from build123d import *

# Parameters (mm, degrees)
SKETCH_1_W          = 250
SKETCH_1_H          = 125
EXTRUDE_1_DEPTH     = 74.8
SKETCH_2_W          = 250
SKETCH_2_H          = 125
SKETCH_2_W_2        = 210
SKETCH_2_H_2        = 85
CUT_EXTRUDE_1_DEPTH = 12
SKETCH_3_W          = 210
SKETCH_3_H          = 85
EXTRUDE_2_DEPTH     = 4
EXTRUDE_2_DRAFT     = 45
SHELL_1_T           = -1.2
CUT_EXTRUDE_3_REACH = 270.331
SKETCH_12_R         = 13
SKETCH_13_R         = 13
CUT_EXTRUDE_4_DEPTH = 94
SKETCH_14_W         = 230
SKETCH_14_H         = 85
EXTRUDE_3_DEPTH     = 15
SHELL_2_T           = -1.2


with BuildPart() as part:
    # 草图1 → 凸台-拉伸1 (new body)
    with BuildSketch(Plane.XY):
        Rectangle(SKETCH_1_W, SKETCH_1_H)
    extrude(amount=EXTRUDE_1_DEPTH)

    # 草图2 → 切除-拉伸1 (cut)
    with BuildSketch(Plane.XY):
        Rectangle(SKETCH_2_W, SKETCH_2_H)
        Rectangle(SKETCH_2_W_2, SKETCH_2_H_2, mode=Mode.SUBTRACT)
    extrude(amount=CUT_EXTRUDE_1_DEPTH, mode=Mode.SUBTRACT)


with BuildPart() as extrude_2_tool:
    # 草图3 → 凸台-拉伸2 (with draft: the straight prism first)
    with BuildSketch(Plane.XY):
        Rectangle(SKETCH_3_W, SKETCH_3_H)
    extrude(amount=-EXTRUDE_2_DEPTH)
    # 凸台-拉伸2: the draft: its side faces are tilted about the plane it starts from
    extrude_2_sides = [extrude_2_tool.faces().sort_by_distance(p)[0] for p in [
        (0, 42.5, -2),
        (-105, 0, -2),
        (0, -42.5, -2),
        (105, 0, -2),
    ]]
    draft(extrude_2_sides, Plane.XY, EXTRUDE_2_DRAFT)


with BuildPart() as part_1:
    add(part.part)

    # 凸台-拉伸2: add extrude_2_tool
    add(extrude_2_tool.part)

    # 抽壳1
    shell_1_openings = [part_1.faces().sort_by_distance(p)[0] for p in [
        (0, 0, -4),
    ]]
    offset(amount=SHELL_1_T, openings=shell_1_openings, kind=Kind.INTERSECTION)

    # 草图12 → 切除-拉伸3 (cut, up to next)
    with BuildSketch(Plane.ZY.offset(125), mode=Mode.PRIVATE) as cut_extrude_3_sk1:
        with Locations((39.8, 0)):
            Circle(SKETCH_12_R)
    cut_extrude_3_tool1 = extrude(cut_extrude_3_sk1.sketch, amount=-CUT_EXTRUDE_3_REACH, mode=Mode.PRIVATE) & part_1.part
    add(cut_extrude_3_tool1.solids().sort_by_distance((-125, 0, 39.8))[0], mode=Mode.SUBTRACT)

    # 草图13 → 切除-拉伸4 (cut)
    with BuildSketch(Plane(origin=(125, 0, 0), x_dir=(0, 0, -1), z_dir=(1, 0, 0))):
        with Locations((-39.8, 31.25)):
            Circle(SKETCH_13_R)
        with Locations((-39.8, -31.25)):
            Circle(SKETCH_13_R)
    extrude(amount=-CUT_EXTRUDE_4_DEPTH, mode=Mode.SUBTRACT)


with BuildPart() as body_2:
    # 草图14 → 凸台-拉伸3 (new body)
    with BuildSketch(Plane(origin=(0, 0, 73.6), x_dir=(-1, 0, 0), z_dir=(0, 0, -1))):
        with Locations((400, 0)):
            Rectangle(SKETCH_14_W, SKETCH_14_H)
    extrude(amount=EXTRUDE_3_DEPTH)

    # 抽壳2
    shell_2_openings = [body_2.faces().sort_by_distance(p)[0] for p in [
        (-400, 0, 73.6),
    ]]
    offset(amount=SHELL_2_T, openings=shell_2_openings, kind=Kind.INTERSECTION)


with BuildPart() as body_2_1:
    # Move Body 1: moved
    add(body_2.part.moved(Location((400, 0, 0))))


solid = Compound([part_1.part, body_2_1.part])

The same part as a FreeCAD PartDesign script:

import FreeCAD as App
import Part
import Sketcher


def faces_at(feature, points):
    """Names of the faces that lie closest to the given points."""
    faces = feature.Shape.Faces
    near = lambda p: min(range(len(faces)), key=lambda i: faces[i].distToShape(Part.Vertex(*p))[0])
    return sorted({f"Face{near(p) + 1}" for p in points})


def add_polygon(sketch, points):
    """Adds a closed chain of lines whose ends are joined by coincident constraints."""
    first, n = sketch.GeometryCount, len(points)
    for a, b in zip(points, points[1:] + points[:1]):
        sketch.addGeometry(Part.LineSegment(App.Vector(*a, 0), App.Vector(*b, 0)), False)
    for i in range(n):
        sketch.addConstraint(Sketcher.Constraint("Coincident", first + i, 2, first + (i + 1) % n, 1))

doc = App.newDocument("Part")
body = doc.addObject("PartDesign::Body", "Body")

# Sketch on XY plane
sketch1 = doc.addObject("Sketcher::SketchObject", "Sketch")
body.addObject(sketch1)
sketch1.AttachmentSupport = (doc.XY_Plane, [""])
sketch1.MapMode = "FlatFace"
add_polygon(sketch1, [(-125, 62.5), (-125, -62.5), (125, -62.5), (125, 62.5)])  # lines 0-3
sketch1.addConstraint([
    Sketcher.Constraint("Vertical", 0),
    Sketcher.Constraint("Horizontal", 1),
    Sketcher.Constraint("Vertical", 2),
    Sketcher.Constraint("Horizontal", 3),
    Sketcher.Constraint("Symmetric", 0, 2, 2, 2, -1, 1),
    Sketcher.Constraint("DistanceX", 1, 1, 1, 2, 250.0),
    Sketcher.Constraint("DistanceY", 0, 2, 0, 1, 125.0),
])
pad1 = doc.addObject("PartDesign::Pad", "Pad")
body.addObject(pad1)
pad1.Profile = sketch1
pad1.Length = 74.8

# Sketch on XY plane
sketch2 = doc.addObject("Sketcher::SketchObject", "Sketch001")
body.addObject(sketch2)
sketch2.AttachmentSupport = (doc.XY_Plane, [""])
sketch2.MapMode = "FlatFace"
add_polygon(sketch2, [(-125, 62.5), (-125, -62.5), (125, -62.5), (125, 62.5)])  # lines 0-3
add_polygon(sketch2, [(105, -42.5), (-105, -42.5), (-105, 42.5), (105, 42.5)])  # lines 4-7
sketch2.addConstraint([
    Sketcher.Constraint("Vertical", 0),
    Sketcher.Constraint("Horizontal", 1),
    Sketcher.Constraint("Vertical", 2),
    Sketcher.Constraint("Horizontal", 3),
    Sketcher.Constraint("Horizontal", 4),
    Sketcher.Constraint("Vertical", 5),
    Sketcher.Constraint("Horizontal", 6),
    Sketcher.Constraint("Vertical", 7),
    Sketcher.Constraint("Symmetric", 0, 2, 2, 2, -1, 1),
    Sketcher.Constraint("Symmetric", 4, 2, 6, 2, -1, 1),
    Sketcher.Constraint("DistanceX", 1, 1, 1, 2, 250.0),
    Sketcher.Constraint("DistanceX", 4, 2, 4, 1, 210.0),
    Sketcher.Constraint("DistanceY", 0, 2, 0, 1, 125.0),
    Sketcher.Constraint("DistanceY", 5, 1, 5, 2, 85.0),
])
pocket1 = doc.addObject("PartDesign::Pocket", "Pocket")
body.addObject(pocket1)
pocket1.Profile = sketch2
pocket1.Length = 12
pocket1.Reversed = True
body2 = doc.addObject("PartDesign::Body", "Body001")

# Sketch on XY plane
sketch3 = doc.addObject("Sketcher::SketchObject", "Sketch002")
body2.addObject(sketch3)
sketch3.AttachmentSupport = (doc.getObject("XY_Plane001"), [""])
sketch3.MapMode = "FlatFace"
add_polygon(sketch3, [(-105, 42.5), (-105, -42.5), (105, -42.5), (105, 42.5)])  # lines 0-3
sketch3.addConstraint([
    Sketcher.Constraint("Vertical", 0),
    Sketcher.Constraint("Horizontal", 1),
    Sketcher.Constraint("Vertical", 2),
    Sketcher.Constraint("Horizontal", 3),
    Sketcher.Constraint("Symmetric", 0, 2, 2, 2, -1, 1),
    Sketcher.Constraint("DistanceX", 1, 1, 1, 2, 210.0),
    Sketcher.Constraint("DistanceY", 0, 2, 0, 1, 85.0),
])
pad2 = doc.addObject("PartDesign::Pad", "Pad001")
body2.addObject(pad2)
pad2.Profile = sketch3
pad2.Length = 4
pad2.Reversed = True
doc.recompute()

draft = doc.addObject("PartDesign::Draft", "Draft")
body2.addObject(draft)
draft.Base = (pad2, faces_at(pad2, [
    (0, 42.5, -2),
    (-105, 0, -2),
    (0, -42.5, -2),
    (105, 0, -2),
]))
draft.NeutralPlane = (doc.getObject("XY_Plane001"), [""])
draft.Angle = 45
draft.Reversed = False
doc.recompute()

boolean = doc.addObject("PartDesign::Boolean", "Boolean")
body.addObject(boolean)
boolean.Type = "Fuse"
boolean.addObjects([body2])
doc.recompute()

thickness = doc.addObject("PartDesign::Thickness", "Thickness")
body.addObject(thickness)
thickness.Base = (boolean, faces_at(boolean, [(0, 0, -4)]))
thickness.Value = 1.2
thickness.Reversed = True
thickness.Join = "Intersection"

# Sketch on YZ plane
sketch4 = doc.addObject("Sketcher::SketchObject", "Sketch003")
body.addObject(sketch4)
sketch4.AttachmentSupport = (doc.YZ_Plane, [""])
sketch4.MapMode = "FlatFace"
sketch4.AttachmentOffset = App.Placement(App.Vector(0, 0, -125), App.Rotation())
sketch4.addGeometry(Part.Circle(App.Vector(0, 39.8, 0), App.Vector(0, 0, 1), 13), False)
sketch4.addConstraint([
    Sketcher.Constraint("PointOnObject", 0, 3, -2),
    Sketcher.Constraint("Diameter", 0, 26.0),
    Sketcher.Constraint("DistanceY", -1, 1, 0, 3, 39.8),
])
pocket2 = doc.addObject("PartDesign::Pocket", "Pocket001")
body.addObject(pocket2)
pocket2.Profile = sketch4
pocket2.Type = "UpToFirst"
pocket2.Reversed = True

# Sketch on YZ plane
sketch5 = doc.addObject("Sketcher::SketchObject", "Sketch004")
body.addObject(sketch5)
sketch5.AttachmentSupport = (doc.YZ_Plane, [""])
sketch5.MapMode = "FlatFace"
sketch5.AttachmentOffset = App.Placement(App.Vector(0, 0, 125), App.Rotation())
sketch5.addGeometry([
    Part.Circle(App.Vector(31.25, 39.8, 0), App.Vector(0, 0, 1), 13),
    Part.Circle(App.Vector(-31.25, 39.8, 0), App.Vector(0, 0, 1), 13),
], False)
sketch5.addConstraint([
    Sketcher.Constraint("Equal", 0, 1),
    Sketcher.Constraint("Symmetric", 0, 3, 1, 3, -2),
    Sketcher.Constraint("Diameter", 0, 26.0),
    Sketcher.Constraint("DistanceY", -1, 1, 0, 3, 39.8),
    Sketcher.Constraint("DistanceX", 1, 3, 0, 3, 62.5),
])
pocket3 = doc.addObject("PartDesign::Pocket", "Pocket002")
body.addObject(pocket3)
pocket3.Profile = sketch5
pocket3.Length = 94
body3 = doc.addObject("PartDesign::Body", "Body002")

# Sketch on XY plane
sketch6 = doc.addObject("Sketcher::SketchObject", "Sketch005")
body3.addObject(sketch6)
sketch6.AttachmentSupport = (doc.getObject("XY_Plane002"), [""])
sketch6.MapMode = "FlatFace"
sketch6.AttachmentOffset = App.Placement(App.Vector(0, 0, 73.6), App.Rotation())
add_polygon(sketch6, [(-285, 42.5), (-285, -42.5), (-515, -42.5), (-515, 42.5)])  # lines 0-3
sketch6.addConstraint([
    Sketcher.Constraint("Vertical", 0),
    Sketcher.Constraint("Horizontal", 1),
    Sketcher.Constraint("Vertical", 2),
    Sketcher.Constraint("Horizontal", 3),
    Sketcher.Constraint("DistanceX", 1, 2, 1, 1, 230.0),
    Sketcher.Constraint("DistanceY", 0, 2, 0, 1, 85.0),
    Sketcher.Constraint("DistanceX", 0, 2, -1, 1, 285.0),
    Sketcher.Constraint("DistanceY", 0, 2, -1, 1, 42.5),
])
pad3 = doc.addObject("PartDesign::Pad", "Pad002")
body3.addObject(pad3)
pad3.Profile = sketch6
pad3.Length = 15
pad3.Reversed = True
doc.recompute()

thickness2 = doc.addObject("PartDesign::Thickness", "Thickness001")
body3.addObject(thickness2)
thickness2.Base = (pad3, faces_at(pad3, [(-400, 0, 73.6)]))
thickness2.Value = 1.2
thickness2.Reversed = True
thickness2.Join = "Intersection"
body4 = doc.addObject("PartDesign::Body", "Body003")
doc.recompute()

body3.Placement = App.Placement(App.Vector(400, 0, 0), App.Rotation(App.Vector(0, 0, 1), 0))
boolean2 = doc.addObject("PartDesign::Boolean", "Boolean001")
body4.addObject(boolean2)
boolean2.Type = "Fuse"
boolean2.addObjects([body3])

doc.recompute()
